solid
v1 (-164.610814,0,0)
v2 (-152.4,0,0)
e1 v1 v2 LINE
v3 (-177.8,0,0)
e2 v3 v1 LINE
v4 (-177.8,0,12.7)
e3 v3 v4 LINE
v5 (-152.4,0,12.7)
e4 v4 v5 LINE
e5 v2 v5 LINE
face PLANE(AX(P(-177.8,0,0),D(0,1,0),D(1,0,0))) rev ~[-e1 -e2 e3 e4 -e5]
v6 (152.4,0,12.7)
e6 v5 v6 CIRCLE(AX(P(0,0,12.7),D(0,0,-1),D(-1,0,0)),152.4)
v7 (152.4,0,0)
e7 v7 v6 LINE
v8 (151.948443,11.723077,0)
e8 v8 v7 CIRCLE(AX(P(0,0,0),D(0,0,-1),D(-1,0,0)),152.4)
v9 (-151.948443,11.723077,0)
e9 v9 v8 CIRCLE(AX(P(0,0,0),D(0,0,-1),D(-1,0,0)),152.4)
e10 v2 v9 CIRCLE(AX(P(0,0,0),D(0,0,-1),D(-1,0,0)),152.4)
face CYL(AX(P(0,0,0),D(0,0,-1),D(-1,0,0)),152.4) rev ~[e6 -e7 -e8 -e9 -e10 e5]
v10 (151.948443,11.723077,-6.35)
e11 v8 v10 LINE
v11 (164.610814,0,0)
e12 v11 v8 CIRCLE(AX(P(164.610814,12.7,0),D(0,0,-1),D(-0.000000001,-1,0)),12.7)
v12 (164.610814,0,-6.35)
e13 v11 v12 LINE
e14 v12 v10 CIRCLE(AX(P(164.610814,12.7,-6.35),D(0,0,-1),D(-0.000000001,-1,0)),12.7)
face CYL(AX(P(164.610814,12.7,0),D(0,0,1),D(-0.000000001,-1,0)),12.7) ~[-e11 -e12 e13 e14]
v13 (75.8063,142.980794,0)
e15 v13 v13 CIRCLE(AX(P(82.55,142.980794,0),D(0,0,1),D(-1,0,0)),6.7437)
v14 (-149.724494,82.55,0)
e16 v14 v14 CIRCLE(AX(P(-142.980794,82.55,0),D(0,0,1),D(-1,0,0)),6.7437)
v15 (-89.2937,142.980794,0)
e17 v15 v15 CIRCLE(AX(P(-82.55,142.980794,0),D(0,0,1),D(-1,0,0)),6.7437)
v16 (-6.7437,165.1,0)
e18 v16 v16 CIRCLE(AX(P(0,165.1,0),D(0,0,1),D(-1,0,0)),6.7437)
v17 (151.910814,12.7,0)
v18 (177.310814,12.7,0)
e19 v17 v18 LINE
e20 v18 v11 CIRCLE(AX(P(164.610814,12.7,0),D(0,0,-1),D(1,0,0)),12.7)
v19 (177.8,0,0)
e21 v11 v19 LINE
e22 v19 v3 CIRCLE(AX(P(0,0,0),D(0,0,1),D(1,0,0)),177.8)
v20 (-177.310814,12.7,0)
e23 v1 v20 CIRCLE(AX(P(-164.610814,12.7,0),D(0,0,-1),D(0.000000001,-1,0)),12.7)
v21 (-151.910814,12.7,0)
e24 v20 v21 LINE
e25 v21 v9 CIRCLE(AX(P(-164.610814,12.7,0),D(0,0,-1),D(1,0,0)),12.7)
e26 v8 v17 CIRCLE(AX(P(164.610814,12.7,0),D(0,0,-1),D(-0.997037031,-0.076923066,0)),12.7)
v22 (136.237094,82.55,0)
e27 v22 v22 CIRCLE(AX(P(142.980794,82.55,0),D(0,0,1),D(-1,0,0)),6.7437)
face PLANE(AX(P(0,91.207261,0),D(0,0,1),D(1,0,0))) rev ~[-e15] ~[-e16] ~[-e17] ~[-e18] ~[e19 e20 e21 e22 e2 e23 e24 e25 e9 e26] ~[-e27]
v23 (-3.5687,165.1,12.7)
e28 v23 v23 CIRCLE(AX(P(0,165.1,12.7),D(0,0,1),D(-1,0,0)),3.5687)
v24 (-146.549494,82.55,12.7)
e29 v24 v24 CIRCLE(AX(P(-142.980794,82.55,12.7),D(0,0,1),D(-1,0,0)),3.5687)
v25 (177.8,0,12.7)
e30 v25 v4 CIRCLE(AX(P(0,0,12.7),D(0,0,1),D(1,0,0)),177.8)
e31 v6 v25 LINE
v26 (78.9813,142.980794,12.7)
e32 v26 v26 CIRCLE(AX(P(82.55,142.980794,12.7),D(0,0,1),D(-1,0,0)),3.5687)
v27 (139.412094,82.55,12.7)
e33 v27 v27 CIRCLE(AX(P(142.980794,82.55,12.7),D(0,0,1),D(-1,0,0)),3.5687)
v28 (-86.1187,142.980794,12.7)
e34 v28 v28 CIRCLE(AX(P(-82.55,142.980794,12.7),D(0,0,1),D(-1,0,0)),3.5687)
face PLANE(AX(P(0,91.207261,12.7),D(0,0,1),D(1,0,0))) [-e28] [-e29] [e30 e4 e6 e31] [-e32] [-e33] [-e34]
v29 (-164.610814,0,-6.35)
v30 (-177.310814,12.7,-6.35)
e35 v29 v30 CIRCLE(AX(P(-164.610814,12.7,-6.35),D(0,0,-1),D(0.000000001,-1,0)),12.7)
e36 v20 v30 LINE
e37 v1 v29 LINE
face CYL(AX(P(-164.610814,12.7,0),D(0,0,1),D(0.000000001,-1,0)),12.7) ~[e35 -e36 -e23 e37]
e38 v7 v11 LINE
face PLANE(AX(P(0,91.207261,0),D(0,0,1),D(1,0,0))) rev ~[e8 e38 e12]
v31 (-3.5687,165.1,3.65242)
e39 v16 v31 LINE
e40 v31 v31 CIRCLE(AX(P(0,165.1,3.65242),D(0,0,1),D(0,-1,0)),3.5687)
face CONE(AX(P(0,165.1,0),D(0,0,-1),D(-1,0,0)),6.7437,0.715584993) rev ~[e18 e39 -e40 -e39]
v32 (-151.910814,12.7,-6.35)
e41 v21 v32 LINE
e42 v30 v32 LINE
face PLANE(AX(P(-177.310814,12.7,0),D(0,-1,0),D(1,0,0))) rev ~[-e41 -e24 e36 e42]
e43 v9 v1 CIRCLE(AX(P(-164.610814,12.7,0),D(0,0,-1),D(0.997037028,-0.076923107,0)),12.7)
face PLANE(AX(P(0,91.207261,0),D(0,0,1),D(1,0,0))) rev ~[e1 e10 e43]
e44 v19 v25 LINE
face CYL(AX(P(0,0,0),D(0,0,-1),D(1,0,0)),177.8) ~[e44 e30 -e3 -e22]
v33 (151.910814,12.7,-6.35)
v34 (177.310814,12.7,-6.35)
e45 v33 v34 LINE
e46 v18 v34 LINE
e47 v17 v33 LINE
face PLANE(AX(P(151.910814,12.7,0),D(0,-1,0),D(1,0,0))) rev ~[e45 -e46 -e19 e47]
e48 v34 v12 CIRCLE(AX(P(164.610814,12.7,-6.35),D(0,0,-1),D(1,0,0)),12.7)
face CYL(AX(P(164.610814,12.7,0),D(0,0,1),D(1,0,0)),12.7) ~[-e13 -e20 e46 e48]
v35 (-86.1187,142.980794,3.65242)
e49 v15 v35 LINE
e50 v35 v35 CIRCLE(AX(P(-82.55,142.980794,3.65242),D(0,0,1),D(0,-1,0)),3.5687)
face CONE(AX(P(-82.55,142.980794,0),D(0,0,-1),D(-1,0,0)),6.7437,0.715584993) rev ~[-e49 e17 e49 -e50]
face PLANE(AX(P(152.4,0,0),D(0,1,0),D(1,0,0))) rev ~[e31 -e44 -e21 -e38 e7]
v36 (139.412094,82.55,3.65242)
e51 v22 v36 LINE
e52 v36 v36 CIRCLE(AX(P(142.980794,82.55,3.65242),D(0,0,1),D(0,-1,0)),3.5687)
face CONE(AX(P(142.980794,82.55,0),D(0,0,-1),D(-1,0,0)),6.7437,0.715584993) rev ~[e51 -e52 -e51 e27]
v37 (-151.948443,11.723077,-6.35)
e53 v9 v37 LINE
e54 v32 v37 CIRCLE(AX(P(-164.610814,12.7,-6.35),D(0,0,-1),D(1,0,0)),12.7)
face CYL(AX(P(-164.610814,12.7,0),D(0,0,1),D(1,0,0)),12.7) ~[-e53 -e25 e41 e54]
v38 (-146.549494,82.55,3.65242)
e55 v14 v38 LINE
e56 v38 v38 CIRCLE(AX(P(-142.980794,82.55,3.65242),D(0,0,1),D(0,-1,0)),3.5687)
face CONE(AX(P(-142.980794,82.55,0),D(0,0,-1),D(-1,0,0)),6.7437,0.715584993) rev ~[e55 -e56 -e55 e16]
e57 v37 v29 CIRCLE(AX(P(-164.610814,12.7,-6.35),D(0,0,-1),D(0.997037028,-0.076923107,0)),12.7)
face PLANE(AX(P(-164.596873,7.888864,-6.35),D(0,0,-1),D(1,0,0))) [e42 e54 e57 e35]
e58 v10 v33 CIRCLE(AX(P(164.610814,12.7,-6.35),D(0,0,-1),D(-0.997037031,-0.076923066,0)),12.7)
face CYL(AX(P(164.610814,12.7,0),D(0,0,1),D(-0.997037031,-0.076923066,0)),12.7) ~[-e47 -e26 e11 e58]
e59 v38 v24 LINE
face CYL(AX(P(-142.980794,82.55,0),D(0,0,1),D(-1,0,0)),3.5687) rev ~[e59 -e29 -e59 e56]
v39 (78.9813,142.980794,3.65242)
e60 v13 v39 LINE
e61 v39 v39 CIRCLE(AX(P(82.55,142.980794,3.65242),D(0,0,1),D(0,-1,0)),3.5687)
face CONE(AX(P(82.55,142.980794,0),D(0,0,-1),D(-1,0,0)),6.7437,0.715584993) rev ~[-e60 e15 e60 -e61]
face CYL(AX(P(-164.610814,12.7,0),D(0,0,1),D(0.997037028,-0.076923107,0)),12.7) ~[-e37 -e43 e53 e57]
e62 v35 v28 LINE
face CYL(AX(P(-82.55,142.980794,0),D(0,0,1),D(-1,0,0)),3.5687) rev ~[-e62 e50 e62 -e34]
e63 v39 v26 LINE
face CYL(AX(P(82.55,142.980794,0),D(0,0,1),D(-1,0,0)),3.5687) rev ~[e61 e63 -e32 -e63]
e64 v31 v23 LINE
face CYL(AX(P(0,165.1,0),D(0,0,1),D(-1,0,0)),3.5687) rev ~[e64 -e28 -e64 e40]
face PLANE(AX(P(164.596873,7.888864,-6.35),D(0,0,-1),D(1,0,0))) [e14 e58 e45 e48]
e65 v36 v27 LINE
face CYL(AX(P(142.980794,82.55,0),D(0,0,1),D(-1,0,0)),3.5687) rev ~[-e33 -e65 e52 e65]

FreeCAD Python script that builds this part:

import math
import FreeCAD as App
import Part
import Sketcher
from FreeCAD import Vector
Q = App.Units.Quantity

doc = App.newDocument("Part")
body = doc.addObject("PartDesign::Body", "Body")

# Sketch on XY plane
sketch1 = body.newObject("Sketcher::SketchObject", "Sketch")
sketch1.AttachmentSupport = (doc.getObject("XY_Plane"), [""])
sketch1.MapMode = "FlatFace"
sketch1.addGeometry(Part.LineSegment(Vector(-177.8, 0, 0), Vector(-152.4, 0, 0)), False)
sketch1.addGeometry(Part.ArcOfCircle(Part.Circle(Vector(0, 0, 0), Vector(0, 0, 1), 152.4), math.radians(0), math.radians(180)), False)
sketch1.addGeometry(Part.LineSegment(Vector(152.4, 0, 0), Vector(177.8, 0, 0)), False)
sketch1.addGeometry(Part.ArcOfCircle(Part.Circle(Vector(0, 0, 0), Vector(0, 0, 1), 177.8), math.radians(0), math.radians(180)), False)
sketch1.addConstraint(Sketcher.Constraint("Coincident", 0, 2, 1, 2))
sketch1.addConstraint(Sketcher.Constraint("Coincident", 1, 1, 2, 1))
sketch1.addConstraint(Sketcher.Constraint("Coincident", 2, 2, 3, 1))
sketch1.addConstraint(Sketcher.Constraint("Coincident", 3, 2, 0, 1))
sketch1.addConstraint(Sketcher.Constraint("Horizontal", 0))
sketch1.addConstraint(Sketcher.Constraint("Horizontal", 2))
sketch1.addConstraint(Sketcher.Constraint("Coincident", 1, 3, -1, 1))
sketch1.addConstraint(Sketcher.Constraint("Coincident", 3, 3, -1, 1))
sketch1.addConstraint(Sketcher.Constraint("PointOnObject", 0, 2, -1))
sketch1.addConstraint(Sketcher.Constraint("PointOnObject", 1, 1, -1))
sketch1.addConstraint(Sketcher.Constraint("Radius", 1, Q("6 in")))
sketch1.addConstraint(Sketcher.Constraint("Radius", 3, Q("7 in")))
pad1 = body.newObject("PartDesign::Pad", "Pad")
pad1.Profile = sketch1
pad1.Length = Q("0.5 in")

# Sketch on XY plane
sketch2 = body.newObject("Sketcher::SketchObject", "Sketch001")
sketch2.AttachmentSupport = (doc.getObject("XY_Plane"), [""])
sketch2.MapMode = "FlatFace"
sketch2.addGeometry(Part.ArcOfCircle(Part.Circle(Vector(-164.610814, 12.7, 0), Vector(0, 0, 1), 12.7), math.radians(-4.411728), math.radians(0)), False)
sketch2.addGeometry(Part.ArcOfCircle(Part.Circle(Vector(-164.610814, 12.7, 0), Vector(0, 0, 1), 12.7), math.radians(-90), math.radians(-4.411728)), False)
sketch2.addGeometry(Part.ArcOfCircle(Part.Circle(Vector(-164.610814, 12.7, 0), Vector(0, 0, 1), 12.7), math.radians(180), math.radians(270)), False)
sketch2.addGeometry(Part.LineSegment(Vector(-177.310814, 12.7, 0), Vector(-151.910814, 12.7, 0)), False)
sketch2.addGeometry(Part.ArcOfCircle(Part.Circle(Vector(164.610814, 12.7, 0), Vector(0, 0, 1), 12.7), math.radians(180), math.radians(184.411725)), False)
sketch2.addGeometry(Part.LineSegment(Vector(151.910814, 12.7, 0), Vector(177.310814, 12.7, 0)), False)
sketch2.addGeometry(Part.ArcOfCircle(Part.Circle(Vector(164.610814, 12.7, 0), Vector(0, 0, 1), 12.7), math.radians(-90), math.radians(0)), False)
sketch2.addGeometry(Part.ArcOfCircle(Part.Circle(Vector(164.610814, 12.7, 0), Vector(0, 0, 1), 12.7), math.radians(-175.588275), math.radians(-90)), False)
sketch2.addConstraint(Sketcher.Constraint("Tangent", 0, 1, 1, 2))
sketch2.addConstraint(Sketcher.Constraint("Tangent", 1, 1, 2, 2))
sketch2.addConstraint(Sketcher.Constraint("Coincident", 2, 1, 3, 1))
sketch2.addConstraint(Sketcher.Constraint("Coincident", 3, 2, 0, 2))
sketch2.addConstraint(Sketcher.Constraint("Coincident", 4, 1, 5, 1))
sketch2.addConstraint(Sketcher.Constraint("Coincident", 5, 2, 6, 2))
sketch2.addConstraint(Sketcher.Constraint("Tangent", 6, 1, 7, 2))
sketch2.addConstraint(Sketcher.Constraint("Tangent", 7, 1, 4, 2))
sketch2.addConstraint(Sketcher.Constraint("Horizontal", 3))
sketch2.addConstraint(Sketcher.Constraint("Horizontal", 5))
sketch2.addConstraint(Sketcher.Constraint("Coincident", 2, 3, 0, 3))
sketch2.addConstraint(Sketcher.Constraint("Coincident", 6, 3, 4, 3))
sketch2.addConstraint(Sketcher.Constraint("Equal", 2, 4))
sketch2.addConstraint(Sketcher.Constraint("Symmetric", 1, 1, 6, 1, -1, 1))
sketch2.addConstraint(Sketcher.Constraint("Symmetric", 0, 3, 4, 3, -2))
sketch2.addConstraint(Sketcher.Constraint("Horizontal", 7, 3, 2, 1))
sketch2.addConstraint(Sketcher.Constraint("Horizontal", 3, 2, 4, 1))
sketch2.addConstraint(Sketcher.Constraint("Horizontal", 0, 1, 7, 1))
sketch2.addConstraint(Sketcher.Constraint("Vertical", 2, 3, 1, 1))
sketch2.addConstraint(Sketcher.Constraint("Radius", 0, Q("0.5 in")))
sketch2.addConstraint(Sketcher.Constraint("DistanceX", 0, 3, 0, 1, Q("12.66237 mm")))
sketch2.addConstraint(Sketcher.Constraint("DistanceX", 0, 3, -1, 1, Q("164.610814 mm")))
pad2 = body.newObject("PartDesign::Pad", "Pad001")
pad2.Profile = sketch2
pad2.Length = Q("0.25 in")
pad2.Reversed = True

# Sketch on XY plane
sketch3 = body.newObject("Sketcher::SketchObject", "Sketch002")
sketch3.AttachmentSupport = (doc.getObject("XY_Plane"), [""])
sketch3.MapMode = "FlatFace"
sketch3.addGeometry(Part.Circle(Vector(-142.980794, 82.55, 0), Vector(0, 0, 1), 3.5687), False)
sketch3.addGeometry(Part.Circle(Vector(-82.55, 142.980794, 0), Vector(0, 0, 1), 3.5687), False)
sketch3.addGeometry(Part.Circle(Vector(0, 165.1, 0), Vector(0, 0, 1), 3.5687), False)
sketch3.addGeometry(Part.Circle(Vector(82.55, 142.980794, 0), Vector(0, 0, 1), 3.5687), False)
sketch3.addGeometry(Part.Circle(Vector(142.980794, 82.55, 0), Vector(0, 0, 1), 3.5687), False)
sketch3.addConstraint(Sketcher.Constraint("Equal", 0, 1))
sketch3.addConstraint(Sketcher.Constraint("Equal", 1, 2))
sketch3.addConstraint(Sketcher.Constraint("Equal", 2, 3))
sketch3.addConstraint(Sketcher.Constraint("Equal", 3, 4))
sketch3.addConstraint(Sketcher.Constraint("Symmetric", 1, 3, 3, 3, -2))
sketch3.addConstraint(Sketcher.Constraint("Symmetric", 0, 3, 4, 3, -2))
sketch3.addConstraint(Sketcher.Constraint("PointOnObject", 2, 3, -2))
sketch3.addConstraint(Sketcher.Constraint("Diameter", 0, Q("0.281 in")))
sketch3.addConstraint(Sketcher.Constraint("DistanceY", -1, 1, 2, 3, Q("6.5 in")))
sketch3.addConstraint(Sketcher.Constraint("DistanceX", 1, 3, 3, 3, Q("6.5 in")))
sketch3.addConstraint(Sketcher.Constraint("DistanceY", -1, 1, 0, 3, Q("3.25 in")))
sketch3.addConstraint(Sketcher.Constraint("DistanceX", 0, 3, 4, 3, Q("285.961588 mm")))
sketch3.addConstraint(Sketcher.Constraint("DistanceY", -1, 1, 1, 3, Q("142.980794 mm")))
doc.recompute()
hole = body.newObject("PartDesign::Hole", "Hole")
hole.Profile = sketch3
hole.ThreadType = "None"
hole.Diameter = Q("0.281 in")
hole.DepthType = "ThroughAll"
hole.HoleCutType = "Countersink"
hole.HoleCutDiameter = Q("0.531 in")
hole.HoleCutCountersinkAngle = 82
hole.Reversed = True

doc.recompute()
